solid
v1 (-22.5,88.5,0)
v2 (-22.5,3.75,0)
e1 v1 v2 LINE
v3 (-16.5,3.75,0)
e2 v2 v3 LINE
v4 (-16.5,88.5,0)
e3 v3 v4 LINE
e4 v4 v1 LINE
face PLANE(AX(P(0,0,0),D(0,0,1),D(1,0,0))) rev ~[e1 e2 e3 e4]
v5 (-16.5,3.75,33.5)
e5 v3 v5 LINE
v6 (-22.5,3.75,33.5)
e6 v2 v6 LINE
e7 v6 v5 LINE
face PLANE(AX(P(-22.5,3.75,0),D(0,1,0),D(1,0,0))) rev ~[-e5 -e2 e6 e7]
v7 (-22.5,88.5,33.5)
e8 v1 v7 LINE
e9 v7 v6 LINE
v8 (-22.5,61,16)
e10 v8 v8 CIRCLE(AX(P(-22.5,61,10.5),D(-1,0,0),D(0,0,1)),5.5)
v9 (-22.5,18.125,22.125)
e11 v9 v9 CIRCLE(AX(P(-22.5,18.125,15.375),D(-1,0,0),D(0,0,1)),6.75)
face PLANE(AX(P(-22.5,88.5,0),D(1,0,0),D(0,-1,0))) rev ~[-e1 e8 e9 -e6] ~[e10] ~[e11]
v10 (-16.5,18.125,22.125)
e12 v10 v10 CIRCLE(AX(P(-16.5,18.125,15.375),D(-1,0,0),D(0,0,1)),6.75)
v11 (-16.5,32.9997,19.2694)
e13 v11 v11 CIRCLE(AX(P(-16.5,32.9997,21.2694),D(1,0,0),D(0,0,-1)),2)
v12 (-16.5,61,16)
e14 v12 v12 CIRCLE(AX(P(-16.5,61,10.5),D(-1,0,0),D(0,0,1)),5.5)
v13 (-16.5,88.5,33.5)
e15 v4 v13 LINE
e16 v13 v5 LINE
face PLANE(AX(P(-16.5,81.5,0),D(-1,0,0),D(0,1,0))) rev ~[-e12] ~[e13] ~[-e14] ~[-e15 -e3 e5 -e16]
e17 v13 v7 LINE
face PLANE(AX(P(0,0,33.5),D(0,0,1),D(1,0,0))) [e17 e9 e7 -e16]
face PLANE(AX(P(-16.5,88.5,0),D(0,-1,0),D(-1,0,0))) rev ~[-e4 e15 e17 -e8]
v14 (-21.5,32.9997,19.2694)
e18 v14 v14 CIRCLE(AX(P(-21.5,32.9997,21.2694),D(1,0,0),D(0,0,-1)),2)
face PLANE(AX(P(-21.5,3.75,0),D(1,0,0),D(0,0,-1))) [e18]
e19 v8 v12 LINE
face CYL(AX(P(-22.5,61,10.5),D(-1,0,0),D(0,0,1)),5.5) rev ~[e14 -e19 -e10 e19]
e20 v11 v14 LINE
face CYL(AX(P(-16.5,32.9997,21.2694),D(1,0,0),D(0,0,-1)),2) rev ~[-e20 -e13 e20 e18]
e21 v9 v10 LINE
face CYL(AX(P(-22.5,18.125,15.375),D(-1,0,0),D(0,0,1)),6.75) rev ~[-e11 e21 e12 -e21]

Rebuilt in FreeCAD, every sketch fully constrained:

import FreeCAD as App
import Part
import Sketcher

V = App.Vector


def add_polygon(sketch, points):
    """Adds a closed chain of lines whose ends are joined by coincident constraints."""
    first, n = sketch.GeometryCount, len(points)
    for a, b in zip(points, points[1:] + points[:1]):
        sketch.addGeometry(Part.LineSegment(App.Vector(*a, 0), App.Vector(*b, 0)), False)
    for i in range(n):
        sketch.addConstraint(Sketcher.Constraint("Coincident", first + i, 2, first + (i + 1) % n, 1))

doc = App.newDocument("Part")
params = doc.addObject("Spreadsheet::Sheet", "Params")
for row, (alias, value) in enumerate([
    ("sketch1_width", "6 mm"),
    ("sketch1_height", "84.75 mm"),
    ("pad1_length", "33.5 mm"),
    ("sketch2_diameter", "11 mm"),
    ("sketch2_diameter2", "13.5 mm"),
    ("sketch3_diameter", "4 mm"),
    ("pocket2_length", "5 mm"),
], start=1):
    params.set(f"A{row}", alias)
    params.set(f"B{row}", "=" + value)
    params.setAlias(f"B{row}", alias)

body = doc.addObject("PartDesign::Body", "Body")

# Sketch on XY plane
sketch1 = body.newObject("Sketcher::SketchObject", "Sketch")
sketch1.AttachmentSupport = (doc.getObject("XY_Plane"), [""])
sketch1.MapMode = "FlatFace"
add_polygon(sketch1, [(-16.5, 3.75), (-16.5, 88.5), (-22.5, 88.5), (-22.5, 3.75)])  # lines 0-3
sketch1.addConstraint([
    Sketcher.Constraint("Vertical", 0),
    Sketcher.Constraint("Horizontal", 1),
    Sketcher.Constraint("Vertical", 2),
    Sketcher.Constraint("Horizontal", 3),
    Sketcher.Constraint("DistanceX", 1, 2, 1, 1, 6.0),
    Sketcher.Constraint("DistanceY", 0, 1, 0, 2, 84.75),
    Sketcher.Constraint("DistanceX", 0, 2, -1, 1, 16.5),
    Sketcher.Constraint("DistanceY", -1, 1, 0, 2, 88.5),
])
sketch1.setExpression("Constraints[8]", "Params.sketch1_width")
sketch1.setExpression("Constraints[9]", "Params.sketch1_height")
pad1 = body.newObject("PartDesign::Pad", "Pad")
pad1.Profile = sketch1
pad1.setExpression("Length", "Params.pad1_length")

# Sketch on YZ plane
sketch2 = body.newObject("Sketcher::SketchObject", "Sketch001")
sketch2.AttachmentSupport = (doc.getObject("YZ_Plane"), [""])
sketch2.MapMode = "FlatFace"
sketch2.AttachmentOffset = App.Placement(V(0, 0, -22.5), App.Rotation())
sketch2.addGeometry([
    Part.Circle(V(18.125, 15.375, 0), V(0, 0, 1), 6.75),
    Part.Circle(V(61, 10.5, 0), V(0, 0, 1), 5.5),
], False)
sketch2.addConstraint([
    Sketcher.Constraint("Diameter", 1, 11.0),
    Sketcher.Constraint("Diameter", 0, 13.5),
    Sketcher.Constraint("DistanceX", -1, 1, 1, 3, 61.0),
    Sketcher.Constraint("DistanceY", -1, 1, 1, 3, 10.5),
    Sketcher.Constraint("DistanceX", -1, 1, 0, 3, 18.125),
    Sketcher.Constraint("DistanceY", -1, 1, 0, 3, 15.375),
])
sketch2.setExpression("Constraints[0]", "Params.sketch2_diameter")
sketch2.setExpression("Constraints[1]", "Params.sketch2_diameter2")
pocket1 = body.newObject("PartDesign::Pocket", "Pocket")
pocket1.Profile = sketch2
pocket1.Type = "UpToFirst"
pocket1.Reversed = True

# Sketch on YZ plane
sketch3 = body.newObject("Sketcher::SketchObject", "Sketch002")
sketch3.AttachmentSupport = (doc.getObject("YZ_Plane"), [""])
sketch3.MapMode = "FlatFace"
sketch3.AttachmentOffset = App.Placement(V(0, 0, -16.5), App.Rotation())
sketch3.addGeometry(Part.Circle(V(32.9997, 21.2694, 0), V(0, 0, 1), 2), False)
sketch3.addConstraint([
    Sketcher.Constraint("Diameter", 0, 4.0),
    Sketcher.Constraint("DistanceX", -1, 1, 0, 3, 32.9997),
    Sketcher.Constraint("DistanceY", -1, 1, 0, 3, 21.2694),
])
sketch3.setExpression("Constraints[0]", "Params.sketch3_diameter")
pocket2 = body.newObject("PartDesign::Pocket", "Pocket001")
pocket2.Profile = sketch3
pocket2.setExpression("Length", "Params.pocket2_length")

doc.recompute()
